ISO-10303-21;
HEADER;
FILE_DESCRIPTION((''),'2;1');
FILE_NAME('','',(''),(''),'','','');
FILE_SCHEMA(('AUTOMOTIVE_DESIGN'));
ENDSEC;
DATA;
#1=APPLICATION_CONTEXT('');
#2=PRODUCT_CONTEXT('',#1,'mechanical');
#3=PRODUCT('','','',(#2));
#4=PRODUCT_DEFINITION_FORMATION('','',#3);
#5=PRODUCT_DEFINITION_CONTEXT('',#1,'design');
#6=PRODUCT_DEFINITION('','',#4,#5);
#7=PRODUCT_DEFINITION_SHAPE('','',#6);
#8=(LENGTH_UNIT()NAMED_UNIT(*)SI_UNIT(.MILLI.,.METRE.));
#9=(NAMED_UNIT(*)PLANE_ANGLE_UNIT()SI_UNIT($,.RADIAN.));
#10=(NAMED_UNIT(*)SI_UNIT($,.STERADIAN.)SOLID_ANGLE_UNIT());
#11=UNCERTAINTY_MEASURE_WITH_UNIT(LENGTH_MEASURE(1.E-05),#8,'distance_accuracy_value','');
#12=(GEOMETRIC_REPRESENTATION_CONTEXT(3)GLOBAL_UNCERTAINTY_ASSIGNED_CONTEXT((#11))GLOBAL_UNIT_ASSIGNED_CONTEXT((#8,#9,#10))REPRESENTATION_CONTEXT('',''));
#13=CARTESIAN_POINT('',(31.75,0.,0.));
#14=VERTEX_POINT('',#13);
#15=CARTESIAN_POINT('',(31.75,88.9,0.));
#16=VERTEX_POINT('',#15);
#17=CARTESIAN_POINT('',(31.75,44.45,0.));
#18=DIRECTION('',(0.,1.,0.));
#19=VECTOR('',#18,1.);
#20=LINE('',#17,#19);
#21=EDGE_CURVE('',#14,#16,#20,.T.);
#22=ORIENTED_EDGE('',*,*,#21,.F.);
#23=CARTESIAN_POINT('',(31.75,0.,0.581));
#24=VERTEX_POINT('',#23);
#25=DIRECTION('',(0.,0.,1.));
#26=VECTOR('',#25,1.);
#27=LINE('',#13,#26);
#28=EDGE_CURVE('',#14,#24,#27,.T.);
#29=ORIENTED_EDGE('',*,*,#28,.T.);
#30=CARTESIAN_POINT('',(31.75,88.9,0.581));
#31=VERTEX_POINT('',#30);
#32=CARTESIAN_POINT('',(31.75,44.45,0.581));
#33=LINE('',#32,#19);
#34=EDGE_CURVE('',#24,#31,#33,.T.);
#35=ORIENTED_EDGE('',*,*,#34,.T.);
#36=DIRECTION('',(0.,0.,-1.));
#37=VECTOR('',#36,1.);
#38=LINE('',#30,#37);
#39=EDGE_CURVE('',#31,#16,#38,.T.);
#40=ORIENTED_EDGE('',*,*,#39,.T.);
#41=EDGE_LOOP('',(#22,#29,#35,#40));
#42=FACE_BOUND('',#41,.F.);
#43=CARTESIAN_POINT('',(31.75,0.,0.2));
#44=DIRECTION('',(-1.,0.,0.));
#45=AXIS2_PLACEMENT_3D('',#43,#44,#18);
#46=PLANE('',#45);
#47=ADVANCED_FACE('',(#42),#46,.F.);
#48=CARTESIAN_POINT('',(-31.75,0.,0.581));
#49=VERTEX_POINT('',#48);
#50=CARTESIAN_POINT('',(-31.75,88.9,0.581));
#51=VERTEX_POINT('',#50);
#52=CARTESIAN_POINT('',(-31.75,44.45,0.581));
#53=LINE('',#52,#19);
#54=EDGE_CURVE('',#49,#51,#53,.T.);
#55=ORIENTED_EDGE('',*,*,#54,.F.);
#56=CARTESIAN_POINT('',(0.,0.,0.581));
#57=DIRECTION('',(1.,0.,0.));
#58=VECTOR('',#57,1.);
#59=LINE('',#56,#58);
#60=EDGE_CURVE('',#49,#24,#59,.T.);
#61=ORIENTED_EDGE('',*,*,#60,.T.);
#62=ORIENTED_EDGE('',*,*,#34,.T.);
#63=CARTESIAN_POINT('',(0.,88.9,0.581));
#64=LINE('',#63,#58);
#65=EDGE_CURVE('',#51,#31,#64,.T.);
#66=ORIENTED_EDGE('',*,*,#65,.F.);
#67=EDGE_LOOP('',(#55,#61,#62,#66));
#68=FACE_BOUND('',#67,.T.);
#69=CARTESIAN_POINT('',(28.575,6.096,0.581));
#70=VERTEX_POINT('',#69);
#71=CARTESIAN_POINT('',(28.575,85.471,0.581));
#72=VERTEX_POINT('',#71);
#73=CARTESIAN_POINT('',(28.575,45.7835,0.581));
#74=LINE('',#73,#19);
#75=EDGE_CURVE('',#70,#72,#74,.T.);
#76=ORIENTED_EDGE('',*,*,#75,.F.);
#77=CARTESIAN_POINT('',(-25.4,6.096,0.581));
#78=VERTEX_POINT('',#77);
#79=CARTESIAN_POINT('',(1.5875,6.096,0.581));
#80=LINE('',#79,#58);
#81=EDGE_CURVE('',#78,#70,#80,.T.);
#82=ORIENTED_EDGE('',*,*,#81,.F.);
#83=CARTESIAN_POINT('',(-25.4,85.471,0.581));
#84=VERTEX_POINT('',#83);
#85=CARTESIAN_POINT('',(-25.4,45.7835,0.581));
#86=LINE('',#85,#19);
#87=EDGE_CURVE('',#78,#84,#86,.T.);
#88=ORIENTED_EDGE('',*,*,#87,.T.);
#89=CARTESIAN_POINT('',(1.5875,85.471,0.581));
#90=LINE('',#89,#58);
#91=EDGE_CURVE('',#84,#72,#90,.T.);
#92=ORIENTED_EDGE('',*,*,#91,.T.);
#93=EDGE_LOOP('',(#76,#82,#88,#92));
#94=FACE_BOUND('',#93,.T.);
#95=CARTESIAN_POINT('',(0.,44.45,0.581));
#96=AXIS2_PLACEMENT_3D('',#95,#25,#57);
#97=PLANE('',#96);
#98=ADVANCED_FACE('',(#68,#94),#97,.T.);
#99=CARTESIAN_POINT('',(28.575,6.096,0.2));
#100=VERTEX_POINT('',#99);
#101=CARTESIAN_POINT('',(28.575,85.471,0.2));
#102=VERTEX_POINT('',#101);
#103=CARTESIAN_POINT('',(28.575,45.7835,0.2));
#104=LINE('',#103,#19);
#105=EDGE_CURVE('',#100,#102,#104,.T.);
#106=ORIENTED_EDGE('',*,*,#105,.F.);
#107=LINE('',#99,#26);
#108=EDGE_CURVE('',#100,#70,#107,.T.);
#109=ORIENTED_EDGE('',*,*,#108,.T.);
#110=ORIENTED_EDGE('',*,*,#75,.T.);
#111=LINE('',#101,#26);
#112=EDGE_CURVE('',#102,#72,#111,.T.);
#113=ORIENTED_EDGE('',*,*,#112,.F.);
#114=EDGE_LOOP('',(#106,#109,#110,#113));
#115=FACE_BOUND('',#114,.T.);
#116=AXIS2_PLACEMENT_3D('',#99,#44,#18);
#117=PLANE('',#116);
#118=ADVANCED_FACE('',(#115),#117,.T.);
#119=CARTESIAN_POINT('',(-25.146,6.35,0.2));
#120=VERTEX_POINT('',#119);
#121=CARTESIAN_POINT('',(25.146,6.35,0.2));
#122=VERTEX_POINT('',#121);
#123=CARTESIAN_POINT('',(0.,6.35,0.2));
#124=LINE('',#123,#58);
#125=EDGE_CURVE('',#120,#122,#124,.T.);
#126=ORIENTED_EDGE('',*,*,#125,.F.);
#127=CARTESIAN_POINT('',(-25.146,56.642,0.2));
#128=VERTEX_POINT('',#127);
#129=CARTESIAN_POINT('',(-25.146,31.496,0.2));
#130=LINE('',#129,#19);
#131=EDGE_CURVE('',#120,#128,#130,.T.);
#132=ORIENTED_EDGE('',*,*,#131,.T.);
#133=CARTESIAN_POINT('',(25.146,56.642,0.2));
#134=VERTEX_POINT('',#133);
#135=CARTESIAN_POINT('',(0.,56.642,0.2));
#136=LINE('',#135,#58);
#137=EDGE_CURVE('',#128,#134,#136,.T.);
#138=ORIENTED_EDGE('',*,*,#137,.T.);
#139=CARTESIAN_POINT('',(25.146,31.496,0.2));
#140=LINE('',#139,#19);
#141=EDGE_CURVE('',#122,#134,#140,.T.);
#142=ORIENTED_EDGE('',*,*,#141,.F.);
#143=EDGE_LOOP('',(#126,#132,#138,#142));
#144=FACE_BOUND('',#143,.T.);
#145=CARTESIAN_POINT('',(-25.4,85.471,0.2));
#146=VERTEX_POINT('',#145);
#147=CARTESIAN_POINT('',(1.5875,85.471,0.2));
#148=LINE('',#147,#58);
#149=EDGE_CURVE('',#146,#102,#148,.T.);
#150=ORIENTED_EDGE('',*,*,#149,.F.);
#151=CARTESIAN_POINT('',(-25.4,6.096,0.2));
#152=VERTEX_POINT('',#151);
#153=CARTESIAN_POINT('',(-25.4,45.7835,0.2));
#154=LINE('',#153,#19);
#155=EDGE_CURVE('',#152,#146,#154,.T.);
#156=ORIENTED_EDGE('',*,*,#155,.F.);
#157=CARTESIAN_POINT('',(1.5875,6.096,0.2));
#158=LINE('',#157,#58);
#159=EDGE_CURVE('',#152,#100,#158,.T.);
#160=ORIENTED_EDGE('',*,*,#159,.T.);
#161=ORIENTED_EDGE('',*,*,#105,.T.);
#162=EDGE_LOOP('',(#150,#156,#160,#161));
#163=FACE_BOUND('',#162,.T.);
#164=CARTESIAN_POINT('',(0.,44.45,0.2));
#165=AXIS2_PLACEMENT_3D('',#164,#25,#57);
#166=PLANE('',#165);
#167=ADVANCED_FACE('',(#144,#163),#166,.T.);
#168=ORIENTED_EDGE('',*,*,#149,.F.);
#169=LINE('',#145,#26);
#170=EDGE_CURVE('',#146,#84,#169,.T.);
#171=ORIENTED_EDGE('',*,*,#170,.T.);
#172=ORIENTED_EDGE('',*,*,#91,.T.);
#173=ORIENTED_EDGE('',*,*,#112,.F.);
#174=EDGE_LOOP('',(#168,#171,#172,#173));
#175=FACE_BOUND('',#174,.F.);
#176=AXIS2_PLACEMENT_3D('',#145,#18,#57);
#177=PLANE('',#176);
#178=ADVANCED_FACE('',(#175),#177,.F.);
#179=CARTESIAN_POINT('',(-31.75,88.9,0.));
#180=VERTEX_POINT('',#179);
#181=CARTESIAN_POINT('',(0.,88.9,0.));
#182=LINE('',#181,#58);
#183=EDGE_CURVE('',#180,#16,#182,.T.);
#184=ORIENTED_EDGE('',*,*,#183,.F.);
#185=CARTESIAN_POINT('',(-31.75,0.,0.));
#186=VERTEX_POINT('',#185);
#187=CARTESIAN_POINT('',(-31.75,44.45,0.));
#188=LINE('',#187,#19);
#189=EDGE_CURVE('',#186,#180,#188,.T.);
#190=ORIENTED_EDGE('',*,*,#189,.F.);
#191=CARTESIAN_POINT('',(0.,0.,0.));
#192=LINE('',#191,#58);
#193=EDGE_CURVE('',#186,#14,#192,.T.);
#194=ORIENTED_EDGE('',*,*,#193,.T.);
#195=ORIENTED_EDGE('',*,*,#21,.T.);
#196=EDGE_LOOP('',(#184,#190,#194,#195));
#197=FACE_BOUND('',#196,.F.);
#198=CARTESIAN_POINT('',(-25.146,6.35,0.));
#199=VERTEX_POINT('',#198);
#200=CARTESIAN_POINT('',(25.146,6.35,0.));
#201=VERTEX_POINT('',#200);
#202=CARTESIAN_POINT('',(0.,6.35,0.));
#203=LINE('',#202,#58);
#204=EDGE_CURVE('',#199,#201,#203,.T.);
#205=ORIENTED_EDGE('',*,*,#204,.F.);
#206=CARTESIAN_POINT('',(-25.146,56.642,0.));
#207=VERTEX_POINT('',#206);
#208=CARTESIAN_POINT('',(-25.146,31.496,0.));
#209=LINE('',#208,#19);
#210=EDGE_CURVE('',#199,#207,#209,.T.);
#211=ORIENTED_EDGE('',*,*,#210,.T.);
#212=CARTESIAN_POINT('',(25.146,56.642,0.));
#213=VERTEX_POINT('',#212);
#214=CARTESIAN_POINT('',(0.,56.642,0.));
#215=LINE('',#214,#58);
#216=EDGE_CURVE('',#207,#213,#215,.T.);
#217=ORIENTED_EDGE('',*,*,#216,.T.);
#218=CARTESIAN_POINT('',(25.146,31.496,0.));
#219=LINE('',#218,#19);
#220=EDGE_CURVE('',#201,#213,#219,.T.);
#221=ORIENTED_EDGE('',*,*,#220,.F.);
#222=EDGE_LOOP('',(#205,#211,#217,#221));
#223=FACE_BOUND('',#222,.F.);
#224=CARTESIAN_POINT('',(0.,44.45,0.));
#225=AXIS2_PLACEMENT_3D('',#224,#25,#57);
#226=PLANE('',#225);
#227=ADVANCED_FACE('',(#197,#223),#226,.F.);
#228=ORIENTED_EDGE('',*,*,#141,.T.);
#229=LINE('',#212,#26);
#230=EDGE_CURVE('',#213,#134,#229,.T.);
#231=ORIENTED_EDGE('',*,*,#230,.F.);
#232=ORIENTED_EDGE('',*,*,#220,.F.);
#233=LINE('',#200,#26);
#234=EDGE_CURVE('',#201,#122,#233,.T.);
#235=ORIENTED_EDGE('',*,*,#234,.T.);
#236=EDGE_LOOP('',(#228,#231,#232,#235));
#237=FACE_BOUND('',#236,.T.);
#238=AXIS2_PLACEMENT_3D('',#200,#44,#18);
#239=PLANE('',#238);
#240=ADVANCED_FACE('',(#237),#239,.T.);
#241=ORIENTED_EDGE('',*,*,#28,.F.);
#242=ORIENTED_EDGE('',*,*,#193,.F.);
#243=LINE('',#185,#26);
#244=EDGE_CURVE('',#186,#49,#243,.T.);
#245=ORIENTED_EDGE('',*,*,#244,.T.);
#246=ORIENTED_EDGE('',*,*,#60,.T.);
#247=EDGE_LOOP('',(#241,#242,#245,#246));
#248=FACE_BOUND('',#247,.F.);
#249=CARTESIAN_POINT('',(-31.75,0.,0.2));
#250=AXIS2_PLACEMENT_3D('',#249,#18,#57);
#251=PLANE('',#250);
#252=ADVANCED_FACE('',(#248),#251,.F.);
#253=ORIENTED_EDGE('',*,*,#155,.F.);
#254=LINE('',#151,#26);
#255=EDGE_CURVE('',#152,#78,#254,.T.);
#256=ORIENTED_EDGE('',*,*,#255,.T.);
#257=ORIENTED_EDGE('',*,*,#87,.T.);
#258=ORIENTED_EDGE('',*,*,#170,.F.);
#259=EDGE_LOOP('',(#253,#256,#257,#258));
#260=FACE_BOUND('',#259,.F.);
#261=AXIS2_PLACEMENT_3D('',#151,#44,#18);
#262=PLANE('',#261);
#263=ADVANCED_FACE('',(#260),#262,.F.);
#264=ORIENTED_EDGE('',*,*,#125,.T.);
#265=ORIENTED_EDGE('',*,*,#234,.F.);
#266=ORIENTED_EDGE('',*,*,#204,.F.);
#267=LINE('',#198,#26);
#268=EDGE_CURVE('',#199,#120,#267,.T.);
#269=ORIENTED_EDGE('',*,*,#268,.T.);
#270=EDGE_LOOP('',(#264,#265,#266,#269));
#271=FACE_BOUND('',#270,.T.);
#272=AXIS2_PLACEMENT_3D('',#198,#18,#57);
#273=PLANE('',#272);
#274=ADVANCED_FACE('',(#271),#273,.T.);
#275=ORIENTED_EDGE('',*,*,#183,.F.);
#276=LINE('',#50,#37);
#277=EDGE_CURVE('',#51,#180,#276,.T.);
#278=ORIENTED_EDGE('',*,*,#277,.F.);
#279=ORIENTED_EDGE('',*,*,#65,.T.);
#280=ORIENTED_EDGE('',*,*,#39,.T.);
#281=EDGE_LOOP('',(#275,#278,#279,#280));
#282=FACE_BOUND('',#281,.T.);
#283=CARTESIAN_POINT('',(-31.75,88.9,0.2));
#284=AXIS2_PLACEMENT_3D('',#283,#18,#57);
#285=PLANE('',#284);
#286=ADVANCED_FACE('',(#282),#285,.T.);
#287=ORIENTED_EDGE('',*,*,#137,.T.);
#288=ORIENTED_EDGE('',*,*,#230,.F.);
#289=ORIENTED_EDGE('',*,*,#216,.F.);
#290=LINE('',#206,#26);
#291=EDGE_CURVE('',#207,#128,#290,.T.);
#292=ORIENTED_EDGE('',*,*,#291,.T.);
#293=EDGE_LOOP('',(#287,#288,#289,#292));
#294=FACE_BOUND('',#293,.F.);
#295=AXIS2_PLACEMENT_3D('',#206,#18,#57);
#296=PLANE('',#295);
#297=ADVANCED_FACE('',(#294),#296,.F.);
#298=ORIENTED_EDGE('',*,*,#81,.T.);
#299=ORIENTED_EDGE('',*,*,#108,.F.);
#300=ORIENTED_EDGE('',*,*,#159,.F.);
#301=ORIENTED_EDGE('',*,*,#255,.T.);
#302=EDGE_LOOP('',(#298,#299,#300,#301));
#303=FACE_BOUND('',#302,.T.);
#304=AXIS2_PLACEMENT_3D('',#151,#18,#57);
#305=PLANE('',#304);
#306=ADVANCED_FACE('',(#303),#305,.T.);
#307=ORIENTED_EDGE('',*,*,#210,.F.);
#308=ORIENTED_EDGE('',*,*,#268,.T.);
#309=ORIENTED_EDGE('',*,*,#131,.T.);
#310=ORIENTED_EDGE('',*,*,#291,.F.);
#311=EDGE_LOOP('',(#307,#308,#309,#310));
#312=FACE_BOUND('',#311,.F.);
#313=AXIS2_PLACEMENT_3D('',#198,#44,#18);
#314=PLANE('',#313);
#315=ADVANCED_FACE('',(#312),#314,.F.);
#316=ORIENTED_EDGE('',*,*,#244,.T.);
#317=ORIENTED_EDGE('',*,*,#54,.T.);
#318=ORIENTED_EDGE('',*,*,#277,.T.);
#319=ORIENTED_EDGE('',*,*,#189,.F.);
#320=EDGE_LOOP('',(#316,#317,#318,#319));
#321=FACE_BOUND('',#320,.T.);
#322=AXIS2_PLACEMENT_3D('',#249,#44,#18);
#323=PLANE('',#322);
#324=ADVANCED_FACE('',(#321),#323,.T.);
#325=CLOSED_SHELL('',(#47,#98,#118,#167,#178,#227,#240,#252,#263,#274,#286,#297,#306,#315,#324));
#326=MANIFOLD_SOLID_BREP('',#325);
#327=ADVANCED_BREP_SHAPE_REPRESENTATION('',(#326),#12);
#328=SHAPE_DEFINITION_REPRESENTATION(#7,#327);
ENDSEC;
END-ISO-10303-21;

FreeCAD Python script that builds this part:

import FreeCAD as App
import Part
import Sketcher

V = App.Vector
Q = App.Units.Quantity


def add_polygon(sketch, points):
    """Adds a closed chain of lines whose ends are joined by coincident constraints."""
    first, n = sketch.GeometryCount, len(points)
    for a, b in zip(points, points[1:] + points[:1]):
        sketch.addGeometry(Part.LineSegment(App.Vector(*a, 0), App.Vector(*b, 0)), False)
    for i in range(n):
        sketch.addConstraint(Sketcher.Constraint("Coincident", first + i, 2, first + (i + 1) % n, 1))

doc = App.newDocument("Part")
body = doc.addObject("PartDesign::Body", "Body")

sketch1 = body.newObject("Sketcher::SketchObject", "Sketch")
sketch1.AttachmentSupport = (doc.getObject("XY_Plane"), [""])
sketch1.MapMode = "FlatFace"
add_polygon(sketch1, [(-32, 89), (-32, 0), (32, 0), (32, 89)])
add_polygon(sketch1, [(25, 6), (-25, 6), (-25, 57), (25, 57)])
sketch1.addConstraint([
    Sketcher.Constraint("Vertical", 0),
    Sketcher.Constraint("Horizontal", 1),
    Sketcher.Constraint("Vertical", 2),
    Sketcher.Constraint("Horizontal", 3),
    Sketcher.Constraint("Horizontal", 4),
    Sketcher.Constraint("Vertical", 5),
    Sketcher.Constraint("Horizontal", 6),
    Sketcher.Constraint("Vertical", 7),
    Sketcher.Constraint("Symmetric", 0, 2, 1, 2, -1, 1),
    Sketcher.Constraint("Equal", 6, 5),
    Sketcher.Constraint("DistanceX", 1, 1, 1, 2, Q("2.5 in")),
    Sketcher.Constraint("DistanceY", 0, 2, 0, 1, Q("3.5 in")),
    Sketcher.Constraint("DistanceX", 4, 2, 4, 1, Q("1.98 in")),
    Sketcher.Constraint("DistanceX", 4, 2, -1, 1, Q("0.99 in")),
    Sketcher.Constraint("DistanceY", -1, 1, 4, 2, Q("0.25 in")),
])
pad1 = body.newObject("PartDesign::Pad", "Pad")
pad1.Profile = sketch1
pad1.Length = 0.2

sketch2 = body.newObject("Sketcher::SketchObject", "Sketch001")
sketch2.AttachmentSupport = (doc.getObject("XY_Plane"), [""])
sketch2.MapMode = "FlatFace"
sketch2.AttachmentOffset = App.Placement(V(0, 0, 0.2), App.Rotation())
add_polygon(sketch2, [(-32, 89), (-32, 0), (32, 0), (32, 89)])
add_polygon(sketch2, [(29, 6), (-25, 6), (-25, 85), (29, 85)])
sketch2.addConstraint([
    Sketcher.Constraint("Vertical", 0),
    Sketcher.Constraint("Horizontal", 1),
    Sketcher.Constraint("Vertical", 2),
    Sketcher.Constraint("Horizontal", 3),
    Sketcher.Constraint("Horizontal", 4),
    Sketcher.Constraint("Vertical", 5),
    Sketcher.Constraint("Horizontal", 6),
    Sketcher.Constraint("Vertical", 7),
    Sketcher.Constraint("Symmetric", 0, 2, 1, 2, -1, 1),
    Sketcher.Constraint("DistanceX", 1, 1, 1, 2, Q("2.5 in")),
    Sketcher.Constraint("DistanceY", 0, 2, 0, 1, Q("3.5 in")),
    Sketcher.Constraint("DistanceX", 4, 2, -1, 1, Q("1 in")),
    Sketcher.Constraint("DistanceX", 4, 2, 4, 1, Q("2.125 in")),
    Sketcher.Constraint("DistanceY", 5, 1, 5, 2, Q("3.125 in")),
    Sketcher.Constraint("DistanceY", -1, 1, 4, 2, Q("0.24 in")),
])
pad2 = body.newObject("PartDesign::Pad", "Pad001")
pad2.Profile = sketch2
pad2.Length = Q("0.015 in")

doc.recompute()
